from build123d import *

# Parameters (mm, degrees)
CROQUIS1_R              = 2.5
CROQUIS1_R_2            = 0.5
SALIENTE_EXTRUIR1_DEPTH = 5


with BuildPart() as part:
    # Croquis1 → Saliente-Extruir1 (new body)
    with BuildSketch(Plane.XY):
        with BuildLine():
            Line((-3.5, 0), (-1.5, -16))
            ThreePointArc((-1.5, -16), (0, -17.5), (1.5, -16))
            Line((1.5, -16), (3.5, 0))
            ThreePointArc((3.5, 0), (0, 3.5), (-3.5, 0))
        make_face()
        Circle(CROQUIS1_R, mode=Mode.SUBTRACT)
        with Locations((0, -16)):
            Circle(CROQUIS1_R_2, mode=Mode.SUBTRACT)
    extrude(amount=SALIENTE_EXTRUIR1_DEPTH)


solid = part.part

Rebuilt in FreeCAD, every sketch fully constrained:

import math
import FreeCAD as App
import Part
import Sketcher

doc = App.newDocument("Part")
params = doc.addObject("Spreadsheet::Sheet", "Params")
for row, (alias, value) in enumerate([
    ("sketch1_diameter", "1 mm"),
    ("sketch1_diameter2", "5 mm"),
    ("sketch1_radius", "1.5 mm"),
    ("sketch1_radius2", "3.5 mm"),
    ("pad1_length", "5 mm"),
], start=1):
    params.set(f"A{row}", alias)
    params.set(f"B{row}", "=" + value)
    params.setAlias(f"B{row}", alias)

body = doc.addObject("PartDesign::Body", "Body")

sketch1 = body.newObject("Sketcher::SketchObject", "Sketch")
sketch1.AttachmentSupport = (doc.getObject("XY_Plane"), [""])
sketch1.MapMode = "FlatFace"
sketch1.addGeometry(Part.LineSegment(App.Vector(-3.5, 0, 0), App.Vector(-1.5, -16, 0)), False)
sketch1.addGeometry(Part.ArcOfCircle(Part.Circle(App.Vector(0, -16, 0), App.Vector(0, 0, 1), 1.5), math.radians(180), math.radians(360)), False)
sketch1.addGeometry(Part.LineSegment(App.Vector(1.5, -16, 0), App.Vector(3.5, 0, 0)), False)
sketch1.addGeometry(Part.ArcOfCircle(Part.Circle(App.Vector(0, 0, 0), App.Vector(0, 0, 1), 3.5), math.radians(0), math.radians(180)), False)
sketch1.addGeometry(Part.Circle(App.Vector(0, -16, 0), App.Vector(0, 0, 1), 0.5), False)
sketch1.addGeometry(Part.Circle(App.Vector(0, 0, 0), App.Vector(0, 0, 1), 2.5), False)
sketch1.addConstraint(Sketcher.Constraint("Coincident", 0, 2, 1, 1))
sketch1.addConstraint(Sketcher.Constraint("Coincident", 1, 2, 2, 1))
sketch1.addConstraint(Sketcher.Constraint("Coincident", 2, 2, 3, 1))
sketch1.addConstraint(Sketcher.Constraint("Coincident", 3, 2, 0, 1))
sketch1.addConstraint(Sketcher.Constraint("Coincident", 3, 3, -1, 1))
sketch1.addConstraint(Sketcher.Constraint("Coincident", 5, 3, -1, 1))
sketch1.addConstraint(Sketcher.Constraint("Coincident", 4, 3, 1, 3))
sketch1.addConstraint(Sketcher.Constraint("Symmetric", 0, 2, 1, 2, -2))
sketch1.addConstraint(Sketcher.Constraint("PointOnObject", 2, 2, -1))
sketch1.addConstraint(Sketcher.Constraint("PointOnObject", 3, 2, -1))
sketch1.addConstraint(Sketcher.Constraint("Horizontal", 4, 3, 0, 2))
sketch1.addConstraint(Sketcher.Constraint("Diameter", 4, 1.0))
sketch1.addConstraint(Sketcher.Constraint("Diameter", 5, 5.0))
sketch1.addConstraint(Sketcher.Constraint("Radius", 1, 1.5))
sketch1.addConstraint(Sketcher.Constraint("Radius", 3, 3.5))
sketch1.addConstraint(Sketcher.Constraint("DistanceY", 1, 3, -1, 1, 16.0))
sketch1.setExpression("Constraints[11]", "Params.sketch1_diameter")
sketch1.setExpression("Constraints[12]", "Params.sketch1_diameter2")
sketch1.setExpression("Constraints[13]", "Params.sketch1_radius")
sketch1.setExpression("Constraints[14]", "Params.sketch1_radius2")
pad1 = body.newObject("PartDesign::Pad", "Pad")
pad1.Profile = sketch1
pad1.setExpression("Length", "Params.pad1_length")

doc.recompute()
